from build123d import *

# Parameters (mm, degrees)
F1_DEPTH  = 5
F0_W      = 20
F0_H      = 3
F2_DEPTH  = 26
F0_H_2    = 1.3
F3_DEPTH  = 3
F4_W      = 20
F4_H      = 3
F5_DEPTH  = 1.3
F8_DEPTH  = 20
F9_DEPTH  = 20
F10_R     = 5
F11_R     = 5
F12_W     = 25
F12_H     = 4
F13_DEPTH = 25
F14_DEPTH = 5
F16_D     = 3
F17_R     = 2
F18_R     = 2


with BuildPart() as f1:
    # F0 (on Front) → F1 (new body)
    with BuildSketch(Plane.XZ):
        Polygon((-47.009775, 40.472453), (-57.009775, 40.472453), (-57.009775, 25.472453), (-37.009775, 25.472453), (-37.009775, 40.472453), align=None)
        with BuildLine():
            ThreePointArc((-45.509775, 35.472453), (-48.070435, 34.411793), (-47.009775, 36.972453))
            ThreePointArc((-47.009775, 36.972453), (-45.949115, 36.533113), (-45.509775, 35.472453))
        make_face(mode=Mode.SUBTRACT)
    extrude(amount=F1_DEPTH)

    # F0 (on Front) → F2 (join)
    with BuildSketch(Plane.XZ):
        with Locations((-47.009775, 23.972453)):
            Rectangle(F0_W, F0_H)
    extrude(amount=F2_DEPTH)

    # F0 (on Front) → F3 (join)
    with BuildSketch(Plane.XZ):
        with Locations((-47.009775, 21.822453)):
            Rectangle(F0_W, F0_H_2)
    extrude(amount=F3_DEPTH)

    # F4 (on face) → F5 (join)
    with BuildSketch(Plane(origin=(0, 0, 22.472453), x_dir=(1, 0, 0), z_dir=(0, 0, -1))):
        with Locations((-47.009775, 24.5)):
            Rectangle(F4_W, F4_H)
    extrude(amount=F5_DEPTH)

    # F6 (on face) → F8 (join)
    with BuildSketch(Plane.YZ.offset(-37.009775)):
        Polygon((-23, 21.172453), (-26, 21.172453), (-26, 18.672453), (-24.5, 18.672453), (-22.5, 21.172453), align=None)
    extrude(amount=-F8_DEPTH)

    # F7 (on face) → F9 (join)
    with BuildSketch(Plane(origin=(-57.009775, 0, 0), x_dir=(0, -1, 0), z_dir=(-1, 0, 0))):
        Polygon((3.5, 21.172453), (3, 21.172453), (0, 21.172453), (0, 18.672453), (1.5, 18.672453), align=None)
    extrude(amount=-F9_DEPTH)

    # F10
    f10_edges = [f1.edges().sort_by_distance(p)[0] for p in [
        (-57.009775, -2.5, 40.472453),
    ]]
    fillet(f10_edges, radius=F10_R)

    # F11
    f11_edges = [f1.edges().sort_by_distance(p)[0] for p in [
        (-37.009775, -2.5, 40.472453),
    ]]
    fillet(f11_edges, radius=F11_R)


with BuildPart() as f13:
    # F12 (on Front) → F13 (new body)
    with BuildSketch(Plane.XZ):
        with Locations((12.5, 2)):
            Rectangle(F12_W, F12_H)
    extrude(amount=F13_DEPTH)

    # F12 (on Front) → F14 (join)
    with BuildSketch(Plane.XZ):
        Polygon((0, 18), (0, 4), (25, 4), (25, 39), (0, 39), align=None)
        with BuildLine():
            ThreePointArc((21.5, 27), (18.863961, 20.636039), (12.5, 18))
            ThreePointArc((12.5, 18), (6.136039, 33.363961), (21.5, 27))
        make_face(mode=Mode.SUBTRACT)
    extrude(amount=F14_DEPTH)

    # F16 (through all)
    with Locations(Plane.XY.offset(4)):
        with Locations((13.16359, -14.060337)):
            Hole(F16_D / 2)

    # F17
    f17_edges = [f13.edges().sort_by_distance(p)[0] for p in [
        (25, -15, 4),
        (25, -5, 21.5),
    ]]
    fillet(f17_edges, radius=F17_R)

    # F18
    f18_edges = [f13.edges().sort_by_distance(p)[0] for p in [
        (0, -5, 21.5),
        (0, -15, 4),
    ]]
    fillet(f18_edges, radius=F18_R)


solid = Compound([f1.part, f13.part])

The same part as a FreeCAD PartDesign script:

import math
import FreeCAD as App
import Part
import Sketcher

V = App.Vector


def edges_at(feature, points):
    """Names of the edges that pass closest to the given points."""
    edges = feature.Shape.Edges
    near = lambda p: min(range(len(edges)), key=lambda i: edges[i].distToShape(Part.Vertex(*p))[0])
    return sorted({f"Edge{near(p) + 1}" for p in points})


def add_polygon(sketch, points):
    """Adds a closed chain of lines whose ends are joined by coincident constraints."""
    first, n = sketch.GeometryCount, len(points)
    for a, b in zip(points, points[1:] + points[:1]):
        sketch.addGeometry(Part.LineSegment(App.Vector(*a, 0), App.Vector(*b, 0)), False)
    for i in range(n):
        sketch.addConstraint(Sketcher.Constraint("Coincident", first + i, 2, first + (i + 1) % n, 1))

doc = App.newDocument("Part")
body = doc.addObject("PartDesign::Body", "Body")

# Sketch on XZ plane
sketch1 = body.newObject("Sketcher::SketchObject", "Sketch")
sketch1.AttachmentSupport = (doc.getObject("XZ_Plane"), [""])
sketch1.MapMode = "FlatFace"
add_polygon(sketch1, [(-57, 40.5), (-57, 25.5), (-37, 25.5), (-37, 40.5)])  # lines 0-3
sketch1.addGeometry(Part.ArcOfCircle(Part.Circle(V(-47, 35.5, 0), V(0, 0, 1), 1.5), math.radians(0), math.radians(90)), False)  # 4
sketch1.addGeometry(Part.ArcOfCircle(Part.Circle(V(-47, 35.5, 0), V(0, 0, 1), 1.5), math.radians(90), math.radians(360)), False)  # 5
sketch1.addConstraint([
    Sketcher.Constraint("Tangent", 4, 1, 5, 2),
    Sketcher.Constraint("Coincident", 5, 1, 4, 2),
    Sketcher.Constraint("Vertical", 0),
    Sketcher.Constraint("Horizontal", 1),
    Sketcher.Constraint("Vertical", 2),
    Sketcher.Constraint("Horizontal", 3),
    Sketcher.Constraint("Horizontal", 5, 3, 4, 1),
    Sketcher.Constraint("Vertical", 4, 3, 5, 1),
    Sketcher.Constraint("Radius", 4, 1.500001),
    Sketcher.Constraint("DistanceX", 1, 1, 1, 2, 20.0),
    Sketcher.Constraint("DistanceY", 0, 2, 0, 1, 15.0),
    Sketcher.Constraint("DistanceX", 0, 2, 4, 3, 9.999999),
    Sketcher.Constraint("DistanceY", 0, 2, 4, 3, 9.999999),
    Sketcher.Constraint("DistanceX", 4, 3, -1, 1, 47.009776),
    Sketcher.Constraint("DistanceY", -1, 1, 4, 3, 35.472452),
])
pad1 = body.newObject("PartDesign::Pad", "Pad")
pad1.Profile = sketch1
pad1.Length = 5

# Sketch on XZ plane
sketch2 = body.newObject("Sketcher::SketchObject", "Sketch001")
sketch2.AttachmentSupport = (doc.getObject("XZ_Plane"), [""])
sketch2.MapMode = "FlatFace"
add_polygon(sketch2, [(-57, 25.5), (-57, 22.5), (-37, 22.5), (-37, 25.5)])  # lines 0-3
sketch2.addConstraint([
    Sketcher.Constraint("Vertical", 0),
    Sketcher.Constraint("Horizontal", 1),
    Sketcher.Constraint("Vertical", 2),
    Sketcher.Constraint("Horizontal", 3),
    Sketcher.Constraint("DistanceX", 1, 1, 1, 2, 20.0),
    Sketcher.Constraint("DistanceY", 0, 2, 0, 1, 3.0),
    Sketcher.Constraint("DistanceX", 0, 2, -1, 1, 57.009775),
    Sketcher.Constraint("DistanceY", -1, 1, 0, 2, 22.472453),
])
pad2 = body.newObject("PartDesign::Pad", "Pad001")
pad2.Profile = sketch2
pad2.Length = 26

# Sketch on XZ plane
sketch3 = body.newObject("Sketcher::SketchObject", "Sketch002")
sketch3.AttachmentSupport = (doc.getObject("XZ_Plane"), [""])
sketch3.MapMode = "FlatFace"
add_polygon(sketch3, [(-57, 22.5), (-57, 21.2), (-37, 21.2), (-37, 22.5)])  # lines 0-3
sketch3.addConstraint([
    Sketcher.Constraint("Vertical", 0),
    Sketcher.Constraint("Horizontal", 1),
    Sketcher.Constraint("Vertical", 2),
    Sketcher.Constraint("Horizontal", 3),
    Sketcher.Constraint("DistanceX", 1, 1, 1, 2, 20.0),
    Sketcher.Constraint("DistanceY", 0, 2, 0, 1, 1.3),
    Sketcher.Constraint("DistanceX", 0, 2, -1, 1, 57.009775),
    Sketcher.Constraint("DistanceY", -1, 1, 0, 2, 21.172453),
])
pad3 = body.newObject("PartDesign::Pad", "Pad002")
pad3.Profile = sketch3
pad3.Length = 3

# Sketch on XY plane
sketch4 = body.newObject("Sketcher::SketchObject", "Sketch003")
sketch4.AttachmentSupport = (doc.getObject("XY_Plane"), [""])
sketch4.MapMode = "FlatFace"
sketch4.AttachmentOffset = App.Placement(V(0, 0, 22.472453), App.Rotation())
add_polygon(sketch4, [(-57, -26), (-57, -23), (-37, -23), (-37, -26)])  # lines 0-3
sketch4.addConstraint([
    Sketcher.Constraint("Vertical", 0),
    Sketcher.Constraint("Horizontal", 1),
    Sketcher.Constraint("Vertical", 2),
    Sketcher.Constraint("Horizontal", 3),
    Sketcher.Constraint("DistanceX", 1, 1, 1, 2, 20.0),
    Sketcher.Constraint("DistanceY", 0, 1, 0, 2, 3.0),
    Sketcher.Constraint("DistanceY", 0, 2, -1, 1, 23.0),
    Sketcher.Constraint("DistanceX", 0, 2, -1, 1, 57.009775),
])
pad4 = body.newObject("PartDesign::Pad", "Pad003")
pad4.Profile = sketch4
pad4.Length = 1.3
pad4.Reversed = True

# Sketch on YZ plane
sketch5 = body.newObject("Sketcher::SketchObject", "Sketch004")
sketch5.AttachmentSupport = (doc.getObject("YZ_Plane"), [""])
sketch5.MapMode = "FlatFace"
sketch5.AttachmentOffset = App.Placement(V(0, 0, -37.009775), App.Rotation())
add_polygon(sketch5, [(-26, 21.2), (-26, 18.7), (-24.5, 18.7), (-22.5, 21.2)])  # lines 0-3
sketch5.addConstraint([
    Sketcher.Constraint("Vertical", 0),
    Sketcher.Constraint("Horizontal", 1),
    Sketcher.Constraint("Horizontal", 3),
    Sketcher.Constraint("DistanceX", 1, 1, 1, 2, 1.5),
    Sketcher.Constraint("DistanceX", 3, 2, 3, 1, 3.5),
    Sketcher.Constraint("DistanceY", 0, 2, 0, 1, 2.5),
    Sketcher.Constraint("DistanceX", 0, 2, -1, 1, 26.0),
    Sketcher.Constraint("DistanceY", -1, 1, 0, 2, 18.672453),
])
pad5 = body.newObject("PartDesign::Pad", "Pad004")
pad5.Profile = sketch5
pad5.Length = 20
pad5.Reversed = True

# Sketch on YZ plane
sketch6 = body.newObject("Sketcher::SketchObject", "Sketch005")
sketch6.AttachmentSupport = (doc.getObject("YZ_Plane"), [""])
sketch6.MapMode = "FlatFace"
sketch6.AttachmentOffset = App.Placement(V(0, 0, -57.009775), App.Rotation())
add_polygon(sketch6, [(-3.5, 21.2), (0, 21.2), (0, 18.7), (-1.5, 18.7)])  # lines 0-3
sketch6.addConstraint([
    Sketcher.Constraint("Horizontal", 0),
    Sketcher.Constraint("Vertical", 1),
    Sketcher.Constraint("Horizontal", 2),
    Sketcher.Constraint("PointOnObject", 0, 2, -2),
    Sketcher.Constraint("DistanceX", 0, 1, 0, 2, 3.5),
    Sketcher.Constraint("DistanceX", 2, 2, 2, 1, 1.5),
    Sketcher.Constraint("DistanceY", 1, 2, 1, 1, 2.5),
    Sketcher.Constraint("DistanceY", -1, 1, 0, 2, 21.172453),
])
pad6 = body.newObject("PartDesign::Pad", "Pad005")
pad6.Profile = sketch6
pad6.Length = 20
doc.recompute()

fillet = body.newObject("PartDesign::Fillet", "Fillet")
fillet.Base = (pad6, edges_at(pad6, [(-57.01, -2.5, 40.472)]))
fillet.Radius = 5
doc.recompute()

fillet2 = body.newObject("PartDesign::Fillet", "Fillet001")
fillet2.Base = (fillet, edges_at(fillet, [(-37.01, -2.5, 40.472)]))
fillet2.Radius = 5
body2 = doc.addObject("PartDesign::Body", "Body001")

# Sketch on XZ plane
sketch7 = body2.newObject("Sketcher::SketchObject", "Sketch006")
sketch7.AttachmentSupport = (doc.getObject("XZ_Plane001"), [""])
sketch7.MapMode = "FlatFace"
add_polygon(sketch7, [(0, 4), (0, 0), (25, 0), (25, 4)])  # lines 0-3
sketch7.addConstraint([
    Sketcher.Constraint("Vertical", 0),
    Sketcher.Constraint("Horizontal", 1),
    Sketcher.Constraint("Vertical", 2),
    Sketcher.Constraint("Horizontal", 3),
    Sketcher.Constraint("Coincident", 0, 2, -1, 1),
    Sketcher.Constraint("DistanceX", 1, 1, 1, 2, 25.0),
    Sketcher.Constraint("DistanceY", 0, 2, 0, 1, 4.0),
])
pad7 = body2.newObject("PartDesign::Pad", "Pad006")
pad7.Profile = sketch7
pad7.Length = 25

# Sketch on XZ plane
sketch8 = body2.newObject("Sketcher::SketchObject", "Sketch007")
sketch8.AttachmentSupport = (doc.getObject("XZ_Plane001"), [""])
sketch8.MapMode = "FlatFace"
add_polygon(sketch8, [(0, 4), (25, 4), (25, 39), (0, 39)])  # lines 0-3
sketch8.addGeometry(Part.ArcOfCircle(Part.Circle(V(13, 27, 0), V(0, 0, 1), 9), math.radians(0), math.radians(270)), False)  # 4
sketch8.addGeometry(Part.ArcOfCircle(Part.Circle(V(12, 27, 0), V(0, 0, 1), 9), math.radians(-90), math.radians(0)), False)  # 5
sketch8.addConstraint([
    Sketcher.Constraint("Tangent", 4, 1, 5, 2),
    Sketcher.Constraint("Coincident", 5, 1, 4, 2),
    Sketcher.Constraint("Horizontal", 0),
    Sketcher.Constraint("Vertical", 1),
    Sketcher.Constraint("Horizontal", 2),
    Sketcher.Constraint("Vertical", 3),
    Sketcher.Constraint("PointOnObject", 2, 2, -2),
    Sketcher.Constraint("Horizontal", 5, 3, 4, 1),
    Sketcher.Constraint("Vertical", 4, 3, 5, 1),
    Sketcher.Constraint("Radius", 4, 9.0),
    Sketcher.Constraint("DistanceX", 0, 1, 0, 2, 25.0),
    Sketcher.Constraint("DistanceY", 1, 1, 1, 2, 35.0),
    Sketcher.Constraint("DistanceY", -1, 1, 4, 3, 27.0),
    Sketcher.Constraint("DistanceY", -1, 1, 0, 2, 4.0),
    Sketcher.Constraint("DistanceX", -1, 1, 4, 3, 12.5),
])
pad8 = body2.newObject("PartDesign::Pad", "Pad007")
pad8.Profile = sketch8
pad8.Length = 5

# Sketch on XY plane
sketch9 = body2.newObject("Sketcher::SketchObject", "Sketch008")
sketch9.AttachmentSupport = (doc.getObject("XY_Plane001"), [""])
sketch9.MapMode = "FlatFace"
sketch9.AttachmentOffset = App.Placement(V(0, 0, 4), App.Rotation())
sketch9.addGeometry(Part.Circle(V(13.2, -14.1, 0), V(0, 0, 1), 1.5), False)
sketch9.addConstraint([
    Sketcher.Constraint("Diameter", 0, 3.0),
    Sketcher.Constraint("DistanceX", -1, 1, 0, 3, 13.16359),
    Sketcher.Constraint("DistanceY", 0, 3, -1, 1, 14.060337),
])
doc.recompute()
hole = body2.newObject("PartDesign::Hole", "Hole")
hole.Profile = sketch9
hole.ThreadType = "None"
hole.Diameter = 3
hole.DepthType = "ThroughAll"
doc.recompute()

fillet3 = body2.newObject("PartDesign::Fillet", "Fillet002")
fillet3.Base = (hole, edges_at(hole, [(25, -15, 4), (25, -5, 21.5)]))
fillet3.Radius = 2
doc.recompute()

fillet4 = body2.newObject("PartDesign::Fillet", "Fillet003")
fillet4.Base = (fillet3, edges_at(fillet3, [(0, -5, 21.5), (0, -15, 4)]))
fillet4.Radius = 2

doc.recompute()
